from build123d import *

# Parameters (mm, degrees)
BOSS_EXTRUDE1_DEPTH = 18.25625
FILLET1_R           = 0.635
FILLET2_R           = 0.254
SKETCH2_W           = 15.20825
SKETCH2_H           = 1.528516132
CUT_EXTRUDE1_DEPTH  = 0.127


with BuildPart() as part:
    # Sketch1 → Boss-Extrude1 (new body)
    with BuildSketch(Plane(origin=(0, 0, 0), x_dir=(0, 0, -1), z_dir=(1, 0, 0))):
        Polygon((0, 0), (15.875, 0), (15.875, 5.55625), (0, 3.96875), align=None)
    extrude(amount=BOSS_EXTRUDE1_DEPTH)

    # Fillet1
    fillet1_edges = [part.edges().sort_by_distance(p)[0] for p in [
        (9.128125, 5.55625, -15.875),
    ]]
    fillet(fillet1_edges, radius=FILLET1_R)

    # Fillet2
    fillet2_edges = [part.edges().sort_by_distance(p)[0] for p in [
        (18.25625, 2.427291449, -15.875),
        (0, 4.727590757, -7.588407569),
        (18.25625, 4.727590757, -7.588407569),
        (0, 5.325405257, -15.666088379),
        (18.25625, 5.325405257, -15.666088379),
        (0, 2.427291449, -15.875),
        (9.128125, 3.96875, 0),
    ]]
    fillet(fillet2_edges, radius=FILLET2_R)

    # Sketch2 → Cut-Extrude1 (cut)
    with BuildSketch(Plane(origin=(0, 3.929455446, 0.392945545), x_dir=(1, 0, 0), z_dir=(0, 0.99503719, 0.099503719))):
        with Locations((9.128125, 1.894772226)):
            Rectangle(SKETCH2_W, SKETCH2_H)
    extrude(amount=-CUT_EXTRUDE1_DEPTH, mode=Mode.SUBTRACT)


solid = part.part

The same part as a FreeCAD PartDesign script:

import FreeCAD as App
import Part
import Sketcher

V = App.Vector
Q = App.Units.Quantity


def edges_at(feature, points):
    """Names of the edges that pass closest to the given points."""
    edges = feature.Shape.Edges
    near = lambda p: min(range(len(edges)), key=lambda i: edges[i].distToShape(Part.Vertex(*p))[0])
    return sorted({f"Edge{near(p) + 1}" for p in points})

doc = App.newDocument("Part")
body = doc.addObject("PartDesign::Body", "Body")

sketch1 = body.newObject("Sketcher::SketchObject", "Sketch")
sketch1.AttachmentSupport = (doc.getObject("YZ_Plane"), [""])
sketch1.MapMode = "FlatFace"
sketch1.addGeometry([
    Part.LineSegment(V(0, 0, 0), V(0, -15.9, 0)),
    Part.LineSegment(V(0, -15.9, 0), V(5.6, -15.9, 0)),
    Part.LineSegment(V(5.6, -15.9, 0), V(4, 0, 0)),
    Part.LineSegment(V(4, 0, 0), V(0, 0, 0)),
], False)
sketch1.addConstraint([
    Sketcher.Constraint("Coincident", 0, 2, 1, 1),
    Sketcher.Constraint("Coincident", 1, 2, 2, 1),
    Sketcher.Constraint("Coincident", 2, 2, 3, 1),
    Sketcher.Constraint("Coincident", 3, 2, 0, 1),
    Sketcher.Constraint("Vertical", 0),
    Sketcher.Constraint("Horizontal", 1),
    Sketcher.Constraint("Horizontal", 3),
    Sketcher.Constraint("Coincident", 3, 2, -1, 1),
    Sketcher.Constraint("DistanceX", 1, 1, 1, 2, Q("0.21875 in")),
    Sketcher.Constraint("DistanceX", 3, 2, 3, 1, Q("0.15625 in")),
    Sketcher.Constraint("DistanceY", 0, 2, 0, 1, Q("0.625 in")),
])
pad1 = body.newObject("PartDesign::Pad", "Pad")
pad1.Profile = sketch1
pad1.Length = Q("0.71875 in")
doc.recompute()

fillet = body.newObject("PartDesign::Fillet", "Fillet")
fillet.Base = (pad1, edges_at(pad1, [(9.128, 5.556, -15.875)]))
fillet.Radius = Q("0.025 in")
doc.recompute()

fillet2 = body.newObject("PartDesign::Fillet", "Fillet001")
fillet2.Base = (fillet, edges_at(fillet, [
    (18.256, 2.427, -15.875),
    (0, 4.728, -7.588),
    (18.256, 4.728, -7.588),
    (0, 5.325, -15.666),
    (18.256, 5.325, -15.666),
    (0, 2.427, -15.875),
    (9.128, 3.969, 0),
]))
fillet2.Radius = Q("0.01 in")

sketch2 = body.newObject("Sketcher::SketchObject", "Sketch001")
sketch2.Placement = App.Placement(V(0, 3.929455, 0.392946), App.Rotation(V(1, 0, 0), V(0, 0.099503719, -0.99503719), V(0, 0.99503719, 0.099503719), "ZXY"))
sketch2.addGeometry([
    Part.LineSegment(V(1.5, 2.7, 0), V(1.5, 1.1, 0)),
    Part.LineSegment(V(1.5, 1.1, 0), V(16.7, 1.1, 0)),
    Part.LineSegment(V(16.7, 1.1, 0), V(16.7, 2.7, 0)),
    Part.LineSegment(V(16.7, 2.7, 0), V(1.5, 2.7, 0)),
], False)
sketch2.addConstraint([
    Sketcher.Constraint("Coincident", 0, 2, 1, 1),
    Sketcher.Constraint("Coincident", 1, 2, 2, 1),
    Sketcher.Constraint("Coincident", 2, 2, 3, 1),
    Sketcher.Constraint("Coincident", 3, 2, 0, 1),
    Sketcher.Constraint("Vertical", 0),
    Sketcher.Constraint("Horizontal", 1),
    Sketcher.Constraint("Vertical", 2),
    Sketcher.Constraint("Horizontal", 3),
    Sketcher.Constraint("DistanceX", -1, 1, 0, 2, Q("0.06 in")),
    Sketcher.Constraint("DistanceX", 1, 1, 1, 2, 15.20825),
    Sketcher.Constraint("DistanceY", 0, 2, 0, 1, 1.528516),
    Sketcher.Constraint("DistanceY", -1, 1, 2, 2, 2.65903),
])
pocket1 = body.newObject("PartDesign::Pocket", "Pocket")
pocket1.Profile = sketch2
pocket1.Length = Q("0.005 in")

doc.recompute()
